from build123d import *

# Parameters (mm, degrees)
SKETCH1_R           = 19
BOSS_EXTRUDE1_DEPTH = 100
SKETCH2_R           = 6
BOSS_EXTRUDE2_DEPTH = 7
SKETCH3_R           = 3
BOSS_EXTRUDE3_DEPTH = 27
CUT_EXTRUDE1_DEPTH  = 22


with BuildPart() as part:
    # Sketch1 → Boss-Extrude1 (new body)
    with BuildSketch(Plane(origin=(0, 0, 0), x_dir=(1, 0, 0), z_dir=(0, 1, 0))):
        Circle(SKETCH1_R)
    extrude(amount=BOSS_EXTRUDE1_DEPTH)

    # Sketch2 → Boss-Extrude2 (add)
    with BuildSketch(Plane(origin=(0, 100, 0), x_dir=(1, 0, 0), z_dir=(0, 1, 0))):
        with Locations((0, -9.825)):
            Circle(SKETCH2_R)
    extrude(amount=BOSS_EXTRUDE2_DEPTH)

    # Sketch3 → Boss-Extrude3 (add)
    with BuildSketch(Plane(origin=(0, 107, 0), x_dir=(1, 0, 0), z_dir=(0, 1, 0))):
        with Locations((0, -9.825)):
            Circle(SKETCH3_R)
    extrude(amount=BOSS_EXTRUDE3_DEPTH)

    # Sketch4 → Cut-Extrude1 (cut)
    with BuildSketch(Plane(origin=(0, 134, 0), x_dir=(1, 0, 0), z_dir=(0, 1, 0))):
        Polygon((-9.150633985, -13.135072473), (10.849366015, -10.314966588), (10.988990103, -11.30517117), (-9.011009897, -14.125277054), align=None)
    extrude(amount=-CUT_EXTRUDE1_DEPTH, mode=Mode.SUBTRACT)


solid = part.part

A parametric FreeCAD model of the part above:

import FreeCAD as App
import Part
import Sketcher

V = App.Vector

doc = App.newDocument("Part")
body = doc.addObject("PartDesign::Body", "Body")

# Sketch on XZ plane
sketch1 = body.newObject("Sketcher::SketchObject", "Sketch")
sketch1.AttachmentSupport = (doc.getObject("XZ_Plane"), [""])
sketch1.MapMode = "FlatFace"
sketch1.addGeometry(Part.Circle(V(0, 0, 0), V(0, 0, 1), 19), False)
sketch1.addConstraint([
    Sketcher.Constraint("Coincident", 0, 3, -1, 1),
    Sketcher.Constraint("Diameter", 0, 38.0),
])
pad1 = body.newObject("PartDesign::Pad", "Pad")
pad1.Profile = sketch1
pad1.Length = 100
pad1.Reversed = True

# Sketch on XZ plane
sketch2 = body.newObject("Sketcher::SketchObject", "Sketch001")
sketch2.AttachmentSupport = (doc.getObject("XZ_Plane"), [""])
sketch2.MapMode = "FlatFace"
sketch2.AttachmentOffset = App.Placement(V(0, 0, -100), App.Rotation())
sketch2.addGeometry(Part.Circle(V(0, 10, 0), V(0, 0, 1), 6), False)
sketch2.addConstraint([
    Sketcher.Constraint("PointOnObject", 0, 3, -2),
    Sketcher.Constraint("Diameter", 0, 12.0),
    Sketcher.Constraint("DistanceY", -1, 1, 0, 3, 9.825),
])
pad2 = body.newObject("PartDesign::Pad", "Pad001")
pad2.Profile = sketch2
pad2.Length = 7
pad2.Reversed = True

# Sketch on XZ plane
sketch3 = body.newObject("Sketcher::SketchObject", "Sketch002")
sketch3.AttachmentSupport = (doc.getObject("XZ_Plane"), [""])
sketch3.MapMode = "FlatFace"
sketch3.AttachmentOffset = App.Placement(V(0, 0, -107), App.Rotation())
sketch3.addGeometry(Part.Circle(V(0, 9.8, 0), V(0, 0, 1), 3), False)
sketch3.addConstraint([
    Sketcher.Constraint("PointOnObject", 0, 3, -2),
    Sketcher.Constraint("Diameter", 0, 6.0),
    Sketcher.Constraint("DistanceY", -1, 1, 0, 3, 9.825),
])
pad3 = body.newObject("PartDesign::Pad", "Pad002")
pad3.Profile = sketch3
pad3.Length = 27
pad3.Reversed = True

# Sketch on XZ plane
sketch4 = body.newObject("Sketcher::SketchObject", "Sketch003")
sketch4.AttachmentSupport = (doc.getObject("XZ_Plane"), [""])
sketch4.MapMode = "FlatFace"
sketch4.AttachmentOffset = App.Placement(V(0, 0, -134), App.Rotation())
sketch4.addGeometry([
    Part.LineSegment(V(10.8, 10.3, 0), V(-9.2, 13.1, 0)),
    Part.LineSegment(V(-9.2, 13.1, 0), V(-9, 14.1, 0)),
    Part.LineSegment(V(-9, 14.1, 0), V(11, 11.3, 0)),
    Part.LineSegment(V(11, 11.3, 0), V(10.8, 10.3, 0)),
], False)
sketch4.addConstraint([
    Sketcher.Constraint("Coincident", 0, 2, 1, 1),
    Sketcher.Constraint("Coincident", 1, 2, 2, 1),
    Sketcher.Constraint("Coincident", 2, 2, 3, 1),
    Sketcher.Constraint("Coincident", 3, 2, 0, 1),
    Sketcher.Constraint("Perpendicular", 0, 1),
    Sketcher.Constraint("Perpendicular", 1, 2),
    Sketcher.Constraint("Perpendicular", 2, 3),
    Sketcher.Constraint("Distance", 1, 1.0),
    Sketcher.Constraint("DistanceX", 1, 2, 2, 2, 20.0),
    Sketcher.Constraint("DistanceY", 2, 2, 0, 2, 1.829901),
    Sketcher.Constraint("DistanceX", 1, 2, -1, 1, 9.01101),
    Sketcher.Constraint("DistanceY", -1, 1, 2, 2, 11.305171),
])
pocket1 = body.newObject("PartDesign::Pocket", "Pocket")
pocket1.Profile = sketch4
pocket1.Length = 22
pocket1.Reversed = True

doc.recompute()
